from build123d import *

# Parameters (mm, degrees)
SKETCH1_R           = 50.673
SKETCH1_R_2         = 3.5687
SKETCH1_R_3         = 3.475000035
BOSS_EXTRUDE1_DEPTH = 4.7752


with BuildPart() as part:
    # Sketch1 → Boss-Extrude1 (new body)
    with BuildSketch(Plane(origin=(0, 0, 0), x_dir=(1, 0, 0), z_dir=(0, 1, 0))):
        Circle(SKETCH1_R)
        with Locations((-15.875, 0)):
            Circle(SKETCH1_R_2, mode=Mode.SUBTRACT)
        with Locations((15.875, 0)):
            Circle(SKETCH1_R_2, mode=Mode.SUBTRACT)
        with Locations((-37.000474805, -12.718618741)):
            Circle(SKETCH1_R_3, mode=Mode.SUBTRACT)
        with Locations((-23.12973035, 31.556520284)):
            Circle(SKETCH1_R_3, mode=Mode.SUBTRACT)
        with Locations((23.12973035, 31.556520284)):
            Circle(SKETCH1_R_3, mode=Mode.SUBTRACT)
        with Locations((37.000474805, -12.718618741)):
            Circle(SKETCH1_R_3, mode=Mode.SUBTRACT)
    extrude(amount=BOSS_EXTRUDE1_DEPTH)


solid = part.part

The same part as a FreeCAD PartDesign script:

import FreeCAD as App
import Part
import Sketcher
Q = App.Units.Quantity

doc = App.newDocument("Part")
params = doc.addObject("Spreadsheet::Sheet", "Params")
for row, (alias, value) in enumerate([
    ("sketch1_diameter", "3.99 in"),
    ("sketch1_diameter2", "0.281 in"),
    ("pad1_length", "0.188 in"),
], start=1):
    params.set(f"A{row}", alias)
    params.set(f"B{row}", "=" + value)
    params.setAlias(f"B{row}", alias)

body = doc.addObject("PartDesign::Body", "Body")

sketch1 = body.newObject("Sketcher::SketchObject", "Sketch")
sketch1.AttachmentSupport = (doc.getObject("XZ_Plane"), [""])
sketch1.MapMode = "FlatFace"
sketch1.addGeometry(Part.Circle(App.Vector(0, 0, 0), App.Vector(0, 0, 1), 50.7), False)
sketch1.addGeometry(Part.Circle(App.Vector(-37, 12.7, 0), App.Vector(0, 0, 1), 3.5), False)
sketch1.addGeometry(Part.Circle(App.Vector(-15.9, 0, 0), App.Vector(0, 0, 1), 3.6), False)
sketch1.addGeometry(Part.Circle(App.Vector(37, 12.7, 0), App.Vector(0, 0, 1), 3.5), False)
sketch1.addGeometry(Part.Circle(App.Vector(15.9, 0, 0), App.Vector(0, 0, 1), 3.6), False)
sketch1.addGeometry(Part.Circle(App.Vector(-23.1, -31.6, 0), App.Vector(0, 0, 1), 3.5), False)
sketch1.addGeometry(Part.Circle(App.Vector(23.1, -31.6, 0), App.Vector(0, 0, 1), 3.5), False)
sketch1.addConstraint(Sketcher.Constraint("Coincident", 0, 3, -1, 1))
sketch1.addConstraint(Sketcher.Constraint("Equal", 1, 3))
sketch1.addConstraint(Sketcher.Constraint("Equal", 2, 4))
sketch1.addConstraint(Sketcher.Constraint("Equal", 3, 5))
sketch1.addConstraint(Sketcher.Constraint("Equal", 5, 6))
sketch1.addConstraint(Sketcher.Constraint("Symmetric", 2, 3, 4, 3, -1, 1))
sketch1.addConstraint(Sketcher.Constraint("Symmetric", 1, 3, 3, 3, -2))
sketch1.addConstraint(Sketcher.Constraint("Symmetric", 5, 3, 6, 3, -2))
sketch1.addConstraint(Sketcher.Constraint("PointOnObject", 2, 3, -1))
sketch1.addConstraint(Sketcher.Constraint("Diameter", 0, Q("3.99 in")))
sketch1.addConstraint(Sketcher.Constraint("Diameter", 2, Q("0.281 in")))
sketch1.addConstraint(Sketcher.Constraint("Diameter", 1, Q("6.95 mm")))
sketch1.addConstraint(Sketcher.Constraint("DistanceX", 2, 3, 4, 3, Q("1.25 in")))
sketch1.addConstraint(Sketcher.Constraint("DistanceY", -1, 1, 1, 3, Q("12.718619 mm")))
sketch1.addConstraint(Sketcher.Constraint("DistanceX", 5, 3, -1, 1, Q("23.12973 mm")))
sketch1.addConstraint(Sketcher.Constraint("DistanceY", 5, 3, -1, 1, Q("31.55652 mm")))
sketch1.addConstraint(Sketcher.Constraint("DistanceX", 1, 3, 3, 3, Q("74.00095 mm")))
sketch1.setExpression("Constraints[9]", "Params.sketch1_diameter")
sketch1.setExpression("Constraints[10]", "Params.sketch1_diameter2")
pad1 = body.newObject("PartDesign::Pad", "Pad")
pad1.Profile = sketch1
pad1.setExpression("Length", "Params.pad1_length")
pad1.Reversed = True

doc.recompute()
